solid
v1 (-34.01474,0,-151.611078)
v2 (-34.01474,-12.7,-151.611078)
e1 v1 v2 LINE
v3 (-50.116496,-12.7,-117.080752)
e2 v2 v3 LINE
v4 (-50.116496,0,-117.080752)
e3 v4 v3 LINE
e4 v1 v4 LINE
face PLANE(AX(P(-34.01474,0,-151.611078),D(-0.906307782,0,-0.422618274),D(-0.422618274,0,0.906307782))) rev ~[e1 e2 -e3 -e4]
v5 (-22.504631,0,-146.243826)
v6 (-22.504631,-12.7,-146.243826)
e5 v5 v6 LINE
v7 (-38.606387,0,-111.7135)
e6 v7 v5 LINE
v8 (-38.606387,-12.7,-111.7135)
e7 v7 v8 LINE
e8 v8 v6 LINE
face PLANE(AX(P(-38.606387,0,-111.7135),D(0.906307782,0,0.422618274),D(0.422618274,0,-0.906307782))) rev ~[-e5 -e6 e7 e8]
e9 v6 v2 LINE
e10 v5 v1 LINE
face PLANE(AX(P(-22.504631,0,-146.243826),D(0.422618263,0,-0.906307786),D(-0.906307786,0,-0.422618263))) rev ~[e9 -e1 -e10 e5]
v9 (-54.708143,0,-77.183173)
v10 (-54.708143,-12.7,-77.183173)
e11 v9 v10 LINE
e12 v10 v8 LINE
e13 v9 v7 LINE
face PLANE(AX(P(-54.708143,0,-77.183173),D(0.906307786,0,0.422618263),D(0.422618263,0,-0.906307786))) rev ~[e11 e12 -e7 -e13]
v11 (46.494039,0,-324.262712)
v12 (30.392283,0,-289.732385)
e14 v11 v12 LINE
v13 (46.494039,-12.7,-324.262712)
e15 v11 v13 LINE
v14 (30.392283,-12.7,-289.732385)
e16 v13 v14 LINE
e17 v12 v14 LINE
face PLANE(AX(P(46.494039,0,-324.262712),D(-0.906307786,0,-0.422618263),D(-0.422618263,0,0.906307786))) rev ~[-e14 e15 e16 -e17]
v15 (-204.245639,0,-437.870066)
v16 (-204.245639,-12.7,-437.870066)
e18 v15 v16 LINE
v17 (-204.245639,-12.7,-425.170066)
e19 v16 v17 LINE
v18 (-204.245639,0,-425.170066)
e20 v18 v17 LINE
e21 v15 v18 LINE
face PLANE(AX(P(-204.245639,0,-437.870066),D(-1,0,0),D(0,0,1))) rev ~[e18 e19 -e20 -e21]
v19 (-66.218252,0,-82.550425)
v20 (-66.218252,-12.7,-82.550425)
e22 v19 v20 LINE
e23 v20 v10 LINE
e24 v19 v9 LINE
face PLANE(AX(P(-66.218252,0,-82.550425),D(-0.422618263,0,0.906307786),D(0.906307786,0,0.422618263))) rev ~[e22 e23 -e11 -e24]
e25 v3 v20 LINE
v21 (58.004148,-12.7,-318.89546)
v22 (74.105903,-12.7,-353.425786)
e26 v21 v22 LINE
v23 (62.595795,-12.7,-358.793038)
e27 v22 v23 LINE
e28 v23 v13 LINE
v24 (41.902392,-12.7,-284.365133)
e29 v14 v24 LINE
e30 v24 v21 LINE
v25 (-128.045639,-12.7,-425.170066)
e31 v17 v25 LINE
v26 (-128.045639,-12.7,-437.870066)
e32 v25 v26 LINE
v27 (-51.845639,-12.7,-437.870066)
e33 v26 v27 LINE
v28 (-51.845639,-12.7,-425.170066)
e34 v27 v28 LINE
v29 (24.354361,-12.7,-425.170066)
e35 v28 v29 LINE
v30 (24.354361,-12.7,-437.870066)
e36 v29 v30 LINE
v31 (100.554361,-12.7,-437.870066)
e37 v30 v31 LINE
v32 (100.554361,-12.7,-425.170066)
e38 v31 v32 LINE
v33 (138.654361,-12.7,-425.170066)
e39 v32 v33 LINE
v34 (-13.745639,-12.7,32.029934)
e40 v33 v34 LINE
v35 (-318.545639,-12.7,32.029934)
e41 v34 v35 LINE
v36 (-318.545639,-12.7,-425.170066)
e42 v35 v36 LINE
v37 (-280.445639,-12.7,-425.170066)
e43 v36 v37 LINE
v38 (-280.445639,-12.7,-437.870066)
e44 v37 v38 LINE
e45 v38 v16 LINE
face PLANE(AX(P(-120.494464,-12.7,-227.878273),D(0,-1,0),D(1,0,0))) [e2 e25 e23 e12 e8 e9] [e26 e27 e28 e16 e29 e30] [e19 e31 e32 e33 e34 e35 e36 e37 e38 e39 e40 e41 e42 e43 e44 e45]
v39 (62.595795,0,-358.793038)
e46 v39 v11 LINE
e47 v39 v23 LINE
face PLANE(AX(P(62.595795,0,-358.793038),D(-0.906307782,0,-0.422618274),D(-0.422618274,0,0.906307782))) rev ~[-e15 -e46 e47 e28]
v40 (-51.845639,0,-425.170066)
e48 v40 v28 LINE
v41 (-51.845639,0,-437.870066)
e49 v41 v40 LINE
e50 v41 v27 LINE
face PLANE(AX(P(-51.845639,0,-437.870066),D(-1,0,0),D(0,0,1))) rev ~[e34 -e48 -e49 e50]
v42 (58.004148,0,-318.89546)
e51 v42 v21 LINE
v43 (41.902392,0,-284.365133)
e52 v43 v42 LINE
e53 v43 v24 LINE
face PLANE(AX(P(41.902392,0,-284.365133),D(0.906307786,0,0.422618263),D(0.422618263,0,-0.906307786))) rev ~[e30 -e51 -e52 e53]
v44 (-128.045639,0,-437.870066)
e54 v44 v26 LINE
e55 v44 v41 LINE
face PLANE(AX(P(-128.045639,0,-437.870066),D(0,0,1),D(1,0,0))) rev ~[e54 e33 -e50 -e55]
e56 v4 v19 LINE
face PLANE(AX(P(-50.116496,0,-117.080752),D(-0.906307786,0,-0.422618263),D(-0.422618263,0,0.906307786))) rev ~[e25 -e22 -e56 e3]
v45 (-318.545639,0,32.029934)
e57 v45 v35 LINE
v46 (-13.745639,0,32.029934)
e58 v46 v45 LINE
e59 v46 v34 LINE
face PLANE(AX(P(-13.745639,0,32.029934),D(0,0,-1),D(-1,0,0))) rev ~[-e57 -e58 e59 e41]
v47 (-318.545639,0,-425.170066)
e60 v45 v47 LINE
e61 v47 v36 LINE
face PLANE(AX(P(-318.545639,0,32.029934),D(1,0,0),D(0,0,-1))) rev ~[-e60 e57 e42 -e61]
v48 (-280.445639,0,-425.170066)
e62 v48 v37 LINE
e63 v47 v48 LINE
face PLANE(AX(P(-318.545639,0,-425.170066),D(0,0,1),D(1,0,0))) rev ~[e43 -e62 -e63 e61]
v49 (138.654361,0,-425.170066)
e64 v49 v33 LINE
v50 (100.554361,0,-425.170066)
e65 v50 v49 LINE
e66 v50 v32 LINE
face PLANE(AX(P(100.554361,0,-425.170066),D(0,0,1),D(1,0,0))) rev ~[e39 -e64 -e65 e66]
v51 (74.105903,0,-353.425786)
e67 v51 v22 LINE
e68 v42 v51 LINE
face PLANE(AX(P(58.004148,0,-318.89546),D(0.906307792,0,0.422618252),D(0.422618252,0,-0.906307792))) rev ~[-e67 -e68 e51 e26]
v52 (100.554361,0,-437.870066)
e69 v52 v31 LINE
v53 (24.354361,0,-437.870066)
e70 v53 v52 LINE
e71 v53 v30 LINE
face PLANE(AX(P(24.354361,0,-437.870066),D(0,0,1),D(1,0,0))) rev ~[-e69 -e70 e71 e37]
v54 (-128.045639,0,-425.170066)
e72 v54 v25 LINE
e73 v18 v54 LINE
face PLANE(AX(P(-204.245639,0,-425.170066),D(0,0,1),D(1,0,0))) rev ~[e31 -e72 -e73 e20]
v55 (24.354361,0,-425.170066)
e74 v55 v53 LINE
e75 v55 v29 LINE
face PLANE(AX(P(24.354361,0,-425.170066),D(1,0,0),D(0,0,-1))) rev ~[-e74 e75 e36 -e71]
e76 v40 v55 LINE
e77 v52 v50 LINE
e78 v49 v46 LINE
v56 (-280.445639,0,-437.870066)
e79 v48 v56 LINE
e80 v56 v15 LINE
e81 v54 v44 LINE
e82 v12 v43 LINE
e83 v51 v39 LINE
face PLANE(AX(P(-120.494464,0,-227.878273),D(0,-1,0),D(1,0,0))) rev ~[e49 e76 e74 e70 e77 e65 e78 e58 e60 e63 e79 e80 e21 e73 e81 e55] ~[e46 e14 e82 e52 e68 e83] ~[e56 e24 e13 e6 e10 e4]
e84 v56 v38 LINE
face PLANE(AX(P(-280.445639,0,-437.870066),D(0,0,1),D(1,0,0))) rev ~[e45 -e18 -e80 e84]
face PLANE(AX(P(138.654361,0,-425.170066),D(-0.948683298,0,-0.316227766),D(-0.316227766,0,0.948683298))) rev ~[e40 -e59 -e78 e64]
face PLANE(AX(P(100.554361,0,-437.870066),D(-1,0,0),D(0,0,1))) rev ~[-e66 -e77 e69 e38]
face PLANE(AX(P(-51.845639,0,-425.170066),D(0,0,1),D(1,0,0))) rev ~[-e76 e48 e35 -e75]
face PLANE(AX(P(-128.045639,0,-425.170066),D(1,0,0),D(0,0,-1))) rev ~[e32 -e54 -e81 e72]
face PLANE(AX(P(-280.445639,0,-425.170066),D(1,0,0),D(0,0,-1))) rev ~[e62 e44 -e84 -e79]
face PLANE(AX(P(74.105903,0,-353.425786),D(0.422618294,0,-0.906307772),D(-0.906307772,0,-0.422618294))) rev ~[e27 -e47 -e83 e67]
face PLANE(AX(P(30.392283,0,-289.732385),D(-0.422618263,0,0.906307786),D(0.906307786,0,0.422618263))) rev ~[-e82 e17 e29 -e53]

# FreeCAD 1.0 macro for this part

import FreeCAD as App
import Part
import Sketcher
Q = App.Units.Quantity


def add_polygon(sketch, points):
    """Adds a closed chain of lines whose ends are joined by coincident constraints."""
    first, n = sketch.GeometryCount, len(points)
    for a, b in zip(points, points[1:] + points[:1]):
        sketch.addGeometry(Part.LineSegment(App.Vector(*a, 0), App.Vector(*b, 0)), False)
    for i in range(n):
        sketch.addConstraint(Sketcher.Constraint("Coincident", first + i, 2, first + (i + 1) % n, 1))

doc = App.newDocument("Part")
params = doc.addObject("Spreadsheet::Sheet", "Params")
for row, (alias, value) in enumerate([
    ("sketch1_width", "12 in"),
    ("sketch1_width2", "3 in"),
    ("sketch1_height", "18 in"),
    ("sketch1_width3", "1.5 in"),
    ("sketch1_height2", "0.5 in"),
    ("pad1_length", "0.5 in"),
], start=1):
    params.set(f"A{row}", alias)
    params.set(f"B{row}", "=" + value)
    params.setAlias(f"B{row}", alias)

body = doc.addObject("PartDesign::Body", "Body")

# Sketch on XZ plane
sketch1 = doc.addObject("Sketcher::SketchObject", "Sketch")
body.addObject(sketch1)
sketch1.AttachmentSupport = (doc.XZ_Plane, [""])
sketch1.MapMode = "FlatFace"
add_polygon(sketch1, [(-13.745639, 32.029934), (-318.545639, 32.029934), (-318.545639, -425.170066), (-280.445639, -425.170066), (-280.445639, -437.870066), (-204.245639, -437.870066), (-204.245639, -425.170066), (-128.045639, -425.170066), (-128.045639, -437.870066), (-51.845639, -437.870066), (-51.845639, -425.170066), (24.354361, -425.170066), (24.354361, -437.870066), (100.554361, -437.870066), (100.554361, -425.170066), (138.654361, -425.170066)])  # lines 0-15
add_polygon(sketch1, [(62.595795, -358.793038), (46.494039, -324.262712), (30.392283, -289.732385), (41.902392, -284.365133), (58.004148, -318.89546), (74.105903, -353.425786)])  # lines 16-21
add_polygon(sketch1, [(-66.218252, -82.550425), (-54.708143, -77.183173), (-38.606387, -111.7135), (-22.504631, -146.243826), (-34.01474, -151.611078), (-50.116496, -117.080752)])  # lines 22-27
sketch1.addConstraint(Sketcher.Constraint("Horizontal", 0))
sketch1.addConstraint(Sketcher.Constraint("Vertical", 1))
sketch1.addConstraint(Sketcher.Constraint("Horizontal", 2))
sketch1.addConstraint(Sketcher.Constraint("Vertical", 3))
sketch1.addConstraint(Sketcher.Constraint("Horizontal", 4))
sketch1.addConstraint(Sketcher.Constraint("Vertical", 5))
sketch1.addConstraint(Sketcher.Constraint("Horizontal", 6))
sketch1.addConstraint(Sketcher.Constraint("Vertical", 7))
sketch1.addConstraint(Sketcher.Constraint("Horizontal", 8))
sketch1.addConstraint(Sketcher.Constraint("Vertical", 9))
sketch1.addConstraint(Sketcher.Constraint("Horizontal", 10))
sketch1.addConstraint(Sketcher.Constraint("Vertical", 11))
sketch1.addConstraint(Sketcher.Constraint("Horizontal", 12))
sketch1.addConstraint(Sketcher.Constraint("Vertical", 13))
sketch1.addConstraint(Sketcher.Constraint("Horizontal", 14))
sketch1.addConstraint(Sketcher.Constraint("Parallel", 16, 17))
sketch1.addConstraint(Sketcher.Constraint("Perpendicular", 17, 18))
sketch1.addConstraint(Sketcher.Constraint("Perpendicular", 18, 19))
sketch1.addConstraint(Sketcher.Constraint("Parallel", 19, 20))
sketch1.addConstraint(Sketcher.Constraint("Perpendicular", 20, 21))
sketch1.addConstraint(Sketcher.Constraint("Parallel", 21, 22))
sketch1.addConstraint(Sketcher.Constraint("Perpendicular", 22, 23))
sketch1.addConstraint(Sketcher.Constraint("Parallel", 23, 24))
sketch1.addConstraint(Sketcher.Constraint("Perpendicular", 24, 25))
sketch1.addConstraint(Sketcher.Constraint("Perpendicular", 25, 26))
sketch1.addConstraint(Sketcher.Constraint("Parallel", 26, 27))
sketch1.addConstraint(Sketcher.Constraint("Horizontal", 2, 2, 5, 2))
sketch1.addConstraint(Sketcher.Constraint("Horizontal", 4, 2, 7, 2))
sketch1.addConstraint(Sketcher.Constraint("Horizontal", 6, 2, 9, 2))
sketch1.addConstraint(Sketcher.Constraint("Horizontal", 8, 2, 11, 2))
sketch1.addConstraint(Sketcher.Constraint("Horizontal", 10, 2, 13, 2))
sketch1.addConstraint(Sketcher.Constraint("Equal", 4, 6))
sketch1.addConstraint(Sketcher.Constraint("Equal", 6, 8))
sketch1.addConstraint(Sketcher.Constraint("Equal", 8, 10))
sketch1.addConstraint(Sketcher.Constraint("Equal", 10, 12))
sketch1.addConstraint(Sketcher.Constraint("Equal", 2, 14))
sketch1.addConstraint(Sketcher.Constraint("Equal", 16, 17))
sketch1.addConstraint(Sketcher.Constraint("Equal", 17, 19))
sketch1.addConstraint(Sketcher.Constraint("Equal", 21, 22))
sketch1.addConstraint(Sketcher.Constraint("Equal", 20, 23))
sketch1.addConstraint(Sketcher.Constraint("Equal", 23, 24))
sketch1.addConstraint(Sketcher.Constraint("Equal", 24, 26))
sketch1.addConstraint(Sketcher.Constraint("DistanceX", 0, 2, 0, 1, Q("12 in")))
sketch1.addConstraint(Sketcher.Constraint("DistanceX", 4, 1, 4, 2, Q("3 in")))
sketch1.addConstraint(Sketcher.Constraint("DistanceY", 1, 2, 1, 1, Q("18 in")))
sketch1.addConstraint(Sketcher.Constraint("DistanceX", 2, 1, 2, 2, Q("1.5 in")))
sketch1.addConstraint(Sketcher.Constraint("DistanceY", 3, 2, 3, 1, Q("0.5 in")))
sketch1.addConstraint(Sketcher.Constraint("Angle", 16, Q("115.000001 deg")))
sketch1.addConstraint(Sketcher.Constraint("Distance", 16, Q("1.5 in")))
sketch1.addConstraint(Sketcher.Constraint("Distance", 18, Q("0.5 in")))
sketch1.addConstraint(Sketcher.Constraint("DistanceY", 23, 2, -1, 1, 111.7135))
sketch1.addConstraint(Sketcher.Constraint("DistanceX", 0, 2, -1, 1, 318.545639))
sketch1.addConstraint(Sketcher.Constraint("DistanceX", -1, 1, 16, 2, 46.494039))
sketch1.addConstraint(Sketcher.Constraint("DistanceY", 16, 2, -1, 1, 324.262712))
sketch1.addConstraint(Sketcher.Constraint("DistanceX", 24, 2, -1, 1, 22.504631))
sketch1.addConstraint(Sketcher.Constraint("DistanceY", 10, 2, 17, 2, 135.437681))
sketch1.setExpression("Constraints[70]", "Params.sketch1_width")
sketch1.setExpression("Constraints[71]", "Params.sketch1_width2")
sketch1.setExpression("Constraints[72]", "Params.sketch1_height")
sketch1.setExpression("Constraints[73]", "Params.sketch1_width3")
sketch1.setExpression("Constraints[74]", "Params.sketch1_height2")
pad1 = doc.addObject("PartDesign::Pad", "Pad")
body.addObject(pad1)
pad1.Profile = sketch1
pad1.setExpression("Length", "Params.pad1_length")

doc.recompute()
